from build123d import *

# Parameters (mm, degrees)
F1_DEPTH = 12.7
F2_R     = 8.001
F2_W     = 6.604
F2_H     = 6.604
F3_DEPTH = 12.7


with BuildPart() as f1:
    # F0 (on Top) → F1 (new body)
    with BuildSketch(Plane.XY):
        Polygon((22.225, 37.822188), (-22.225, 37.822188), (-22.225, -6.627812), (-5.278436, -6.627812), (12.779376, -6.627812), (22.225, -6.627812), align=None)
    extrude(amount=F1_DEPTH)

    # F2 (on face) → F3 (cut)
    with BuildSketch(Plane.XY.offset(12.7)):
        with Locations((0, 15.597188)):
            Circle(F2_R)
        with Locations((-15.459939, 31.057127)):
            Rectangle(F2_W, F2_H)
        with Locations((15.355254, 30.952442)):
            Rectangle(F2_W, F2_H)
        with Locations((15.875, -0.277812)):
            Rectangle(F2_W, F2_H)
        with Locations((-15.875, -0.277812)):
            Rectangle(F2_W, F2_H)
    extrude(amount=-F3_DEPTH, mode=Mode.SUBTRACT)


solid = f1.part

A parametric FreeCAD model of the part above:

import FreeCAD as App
import Part
import Sketcher
Q = App.Units.Quantity

doc = App.newDocument("Part")
body = doc.addObject("PartDesign::Body", "Body")

# Sketch on XY plane
sketch1 = body.newObject("Sketcher::SketchObject", "Sketch")
sketch1.AttachmentSupport = (doc.getObject("XY_Plane"), [""])
sketch1.MapMode = "FlatFace"
sketch1.addGeometry(Part.LineSegment(App.Vector(22, 38, 0), App.Vector(-22, 38, 0)), False)
sketch1.addGeometry(Part.LineSegment(App.Vector(-22, 38, 0), App.Vector(-22, -7, 0)), False)
sketch1.addGeometry(Part.LineSegment(App.Vector(-22, -7, 0), App.Vector(22, -7, 0)), False)
sketch1.addGeometry(Part.LineSegment(App.Vector(22, -7, 0), App.Vector(22, 38, 0)), False)
sketch1.addConstraint(Sketcher.Constraint("Coincident", 0, 2, 1, 1))
sketch1.addConstraint(Sketcher.Constraint("Coincident", 1, 2, 2, 1))
sketch1.addConstraint(Sketcher.Constraint("Coincident", 2, 2, 3, 1))
sketch1.addConstraint(Sketcher.Constraint("Coincident", 3, 2, 0, 1))
sketch1.addConstraint(Sketcher.Constraint("Horizontal", 0))
sketch1.addConstraint(Sketcher.Constraint("Vertical", 1))
sketch1.addConstraint(Sketcher.Constraint("Horizontal", 2))
sketch1.addConstraint(Sketcher.Constraint("Vertical", 3))
sketch1.addConstraint(Sketcher.Constraint("Equal", 2, 1))
sketch1.addConstraint(Sketcher.Constraint("DistanceX", 0, 2, 0, 1, Q("1.75 in")))
sketch1.addConstraint(Sketcher.Constraint("DistanceX", 0, 2, -1, 1, Q("0.875 in")))
sketch1.addConstraint(Sketcher.Constraint("DistanceY", 1, 2, -1, 1, Q("6.627812 mm")))
pad1 = body.newObject("PartDesign::Pad", "Pad")
pad1.Profile = sketch1
pad1.Length = Q("0.5 in")

# Sketch on XY plane
sketch2 = body.newObject("Sketcher::SketchObject", "Sketch001")
sketch2.AttachmentSupport = (doc.getObject("XY_Plane"), [""])
sketch2.MapMode = "FlatFace"
sketch2.AttachmentOffset = App.Placement(App.Vector(0, 0, 0.5 * 25.4), App.Rotation())
sketch2.addGeometry(Part.Circle(App.Vector(0, 16, 0), App.Vector(0, 0, 1), 8), False)
sketch2.addGeometry(Part.LineSegment(App.Vector(-19, 34, 0), App.Vector(-19, 28, 0)), False)
sketch2.addGeometry(Part.LineSegment(App.Vector(-19, 28, 0), App.Vector(-12, 28, 0)), False)
sketch2.addGeometry(Part.LineSegment(App.Vector(-12, 28, 0), App.Vector(-12, 34, 0)), False)
sketch2.addGeometry(Part.LineSegment(App.Vector(-12, 34, 0), App.Vector(-19, 34, 0)), False)
sketch2.addGeometry(Part.LineSegment(App.Vector(12, 34, 0), App.Vector(12, 28, 0)), False)
sketch2.addGeometry(Part.LineSegment(App.Vector(12, 28, 0), App.Vector(19, 28, 0)), False)
sketch2.addGeometry(Part.LineSegment(App.Vector(19, 28, 0), App.Vector(19, 34, 0)), False)
sketch2.addGeometry(Part.LineSegment(App.Vector(19, 34, 0), App.Vector(12, 34, 0)), False)
sketch2.addGeometry(Part.LineSegment(App.Vector(13, 3, 0), App.Vector(13, -4, 0)), False)
sketch2.addGeometry(Part.LineSegment(App.Vector(13, -4, 0), App.Vector(19, -4, 0)), False)
sketch2.addGeometry(Part.LineSegment(App.Vector(19, -4, 0), App.Vector(19, 3, 0)), False)
sketch2.addGeometry(Part.LineSegment(App.Vector(19, 3, 0), App.Vector(13, 3, 0)), False)
sketch2.addGeometry(Part.LineSegment(App.Vector(-19, 3, 0), App.Vector(-19, -4, 0)), False)
sketch2.addGeometry(Part.LineSegment(App.Vector(-19, -4, 0), App.Vector(-13, -4, 0)), False)
sketch2.addGeometry(Part.LineSegment(App.Vector(-13, -4, 0), App.Vector(-13, 3, 0)), False)
sketch2.addGeometry(Part.LineSegment(App.Vector(-13, 3, 0), App.Vector(-19, 3, 0)), False)
sketch2.addConstraint(Sketcher.Constraint("Coincident", 1, 2, 2, 1))
sketch2.addConstraint(Sketcher.Constraint("Coincident", 2, 2, 3, 1))
sketch2.addConstraint(Sketcher.Constraint("Coincident", 3, 2, 4, 1))
sketch2.addConstraint(Sketcher.Constraint("Coincident", 4, 2, 1, 1))
sketch2.addConstraint(Sketcher.Constraint("Coincident", 5, 2, 6, 1))
sketch2.addConstraint(Sketcher.Constraint("Coincident", 6, 2, 7, 1))
sketch2.addConstraint(Sketcher.Constraint("Coincident", 7, 2, 8, 1))
sketch2.addConstraint(Sketcher.Constraint("Coincident", 8, 2, 5, 1))
sketch2.addConstraint(Sketcher.Constraint("Coincident", 9, 2, 10, 1))
sketch2.addConstraint(Sketcher.Constraint("Coincident", 10, 2, 11, 1))
sketch2.addConstraint(Sketcher.Constraint("Coincident", 11, 2, 12, 1))
sketch2.addConstraint(Sketcher.Constraint("Coincident", 12, 2, 9, 1))
sketch2.addConstraint(Sketcher.Constraint("Coincident", 13, 2, 14, 1))
sketch2.addConstraint(Sketcher.Constraint("Coincident", 14, 2, 15, 1))
sketch2.addConstraint(Sketcher.Constraint("Coincident", 15, 2, 16, 1))
sketch2.addConstraint(Sketcher.Constraint("Coincident", 16, 2, 13, 1))
sketch2.addConstraint(Sketcher.Constraint("Vertical", 1))
sketch2.addConstraint(Sketcher.Constraint("Horizontal", 2))
sketch2.addConstraint(Sketcher.Constraint("Vertical", 3))
sketch2.addConstraint(Sketcher.Constraint("Horizontal", 4))
sketch2.addConstraint(Sketcher.Constraint("Vertical", 5))
sketch2.addConstraint(Sketcher.Constraint("Horizontal", 6))
sketch2.addConstraint(Sketcher.Constraint("Vertical", 7))
sketch2.addConstraint(Sketcher.Constraint("Horizontal", 8))
sketch2.addConstraint(Sketcher.Constraint("Vertical", 9))
sketch2.addConstraint(Sketcher.Constraint("Horizontal", 10))
sketch2.addConstraint(Sketcher.Constraint("Vertical", 11))
sketch2.addConstraint(Sketcher.Constraint("Horizontal", 12))
sketch2.addConstraint(Sketcher.Constraint("Vertical", 13))
sketch2.addConstraint(Sketcher.Constraint("Horizontal", 14))
sketch2.addConstraint(Sketcher.Constraint("Vertical", 15))
sketch2.addConstraint(Sketcher.Constraint("Horizontal", 16))
sketch2.addConstraint(Sketcher.Constraint("Symmetric", 10, 2, 13, 2, -2))
sketch2.addConstraint(Sketcher.Constraint("Symmetric", 12, 2, 15, 2, -2))
sketch2.addConstraint(Sketcher.Constraint("PointOnObject", 0, 3, -2))
sketch2.addConstraint(Sketcher.Constraint("Equal", 4, 6))
sketch2.addConstraint(Sketcher.Constraint("Equal", 8, 10))
sketch2.addConstraint(Sketcher.Constraint("Equal", 16, 1))
sketch2.addConstraint(Sketcher.Constraint("Equal", 3, 5))
sketch2.addConstraint(Sketcher.Constraint("Equal", 7, 9))
sketch2.addConstraint(Sketcher.Constraint("Diameter", 0, Q("0.63 in")))
sketch2.addConstraint(Sketcher.Constraint("DistanceX", 2, 1, 2, 2, Q("0.26 in")))
sketch2.addConstraint(Sketcher.Constraint("DistanceX", 13, 2, 9, 2, Q("1.25 in")))
sketch2.addConstraint(Sketcher.Constraint("DistanceY", 9, 2, 0, 3, Q("0.755 in")))
sketch2.addConstraint(Sketcher.Constraint("DistanceY", -1, 1, 5, 2, Q("1.0886001 in")))
sketch2.addConstraint(Sketcher.Constraint("DistanceX", 1, 2, -1, 1, Q("18.761939 mm")))
sketch2.addConstraint(Sketcher.Constraint("DistanceY", 9, 2, -1, 1, Q("3.579812 mm")))
sketch2.addConstraint(Sketcher.Constraint("DistanceY", 0, 3, 1, 2, Q("12.157939 mm")))
sketch2.addConstraint(Sketcher.Constraint("DistanceX", -1, 1, 5, 2, Q("12.053254 mm")))
pocket1 = body.newObject("PartDesign::Pocket", "Pocket")
pocket1.Profile = sketch2
pocket1.Length = Q("0.5 in")

doc.recompute()
